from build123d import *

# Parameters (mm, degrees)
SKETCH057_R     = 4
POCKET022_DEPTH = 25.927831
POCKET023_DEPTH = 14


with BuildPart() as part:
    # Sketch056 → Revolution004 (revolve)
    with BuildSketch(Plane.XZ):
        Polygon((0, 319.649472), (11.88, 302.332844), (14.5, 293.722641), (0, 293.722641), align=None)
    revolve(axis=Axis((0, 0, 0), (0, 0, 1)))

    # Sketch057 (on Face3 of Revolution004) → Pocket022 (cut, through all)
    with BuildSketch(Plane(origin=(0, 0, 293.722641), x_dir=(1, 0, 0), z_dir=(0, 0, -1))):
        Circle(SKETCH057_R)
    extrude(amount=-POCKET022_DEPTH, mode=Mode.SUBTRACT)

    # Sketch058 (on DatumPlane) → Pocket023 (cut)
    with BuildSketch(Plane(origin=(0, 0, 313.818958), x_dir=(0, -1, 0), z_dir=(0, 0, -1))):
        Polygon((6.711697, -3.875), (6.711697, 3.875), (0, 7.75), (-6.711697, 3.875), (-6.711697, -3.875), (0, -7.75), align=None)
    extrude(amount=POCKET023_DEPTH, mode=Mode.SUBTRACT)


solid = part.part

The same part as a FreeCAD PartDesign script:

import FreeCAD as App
import Part
import Sketcher
from FreeCAD import Vector
Q = App.Units.Quantity

doc = App.newDocument("Part")
body = doc.addObject("PartDesign::Body", "Body")

sketch1 = body.newObject("Sketcher::SketchObject", "Sketch")
sketch1.AttachmentSupport = (doc.getObject("XZ_Plane"), [""])
sketch1.MapMode = "FlatFace"
sketch1.addGeometry([
    Part.LineSegment(Vector(12, 302, 0), Vector(0, 320, 0)),
    Part.LineSegment(Vector(0, 320, 0), Vector(0, 294, 0)),
    Part.LineSegment(Vector(0, 294, 0), Vector(14, 294, 0)),
    Part.LineSegment(Vector(14, 294, 0), Vector(12, 302, 0)),
], False)
sketch1.addConstraint([
    Sketcher.Constraint("Coincident", 0, 2, 1, 1),
    Sketcher.Constraint("Coincident", 1, 2, 2, 1),
    Sketcher.Constraint("Coincident", 2, 2, 3, 1),
    Sketcher.Constraint("Coincident", 3, 2, 0, 1),
    Sketcher.Constraint("Vertical", 1),
    Sketcher.Constraint("Horizontal", 2),
    Sketcher.Constraint("PointOnObject", 0, 2, -2),
    Sketcher.Constraint("Distance", 0, Q("21 mm")),
    Sketcher.Constraint("Distance", 3, Q("9 mm")),
    Sketcher.Constraint("DistanceX", 2, 1, 2, 2, Q("14.5 mm")),
    Sketcher.Constraint("DistanceX", -1, 1, 3, 2, Q("11.88 mm")),
    Sketcher.Constraint("DistanceY", -1, 1, 0, 2, Q("319.649472 mm")),
])
revolution = body.newObject("PartDesign::Revolution", "Revolution")
revolution.Profile = sketch1
revolution.ReferenceAxis = (sketch1, ["V_Axis"])
revolution.Angle = 360

sketch2 = body.newObject("Sketcher::SketchObject", "Sketch001")
sketch2.AttachmentSupport = (doc.getObject("XY_Plane"), [""])
sketch2.MapMode = "FlatFace"
sketch2.AttachmentOffset = App.Placement(Vector(0, 0, 293.722641), App.Rotation())
sketch2.addGeometry(Part.Circle(Vector(0, 0, 0), Vector(0, 0, 1), 4), False)
sketch2.addConstraint([
    Sketcher.Constraint("Coincident", 0, 3, -1, 1),
    Sketcher.Constraint("Diameter", 0, Q("8 mm")),
])
pocket1 = body.newObject("PartDesign::Pocket", "Pocket")
pocket1.Profile = sketch2
pocket1.Type = "ThroughAll"
pocket1.Reversed = True

sketch3 = body.newObject("Sketcher::SketchObject", "Sketch002")
sketch3.AttachmentSupport = (doc.getObject("XY_Plane"), [""])
sketch3.MapMode = "FlatFace"
sketch3.AttachmentOffset = App.Placement(Vector(0, 0, 313.818958), App.Rotation())
sketch3.addGeometry([
    Part.LineSegment(Vector(4, -7, 0), Vector(-4, -7, 0)),
    Part.LineSegment(Vector(-4, -7, 0), Vector(-8, 0, 0)),
    Part.LineSegment(Vector(-8, 0, 0), Vector(-4, 7, 0)),
    Part.LineSegment(Vector(-4, 7, 0), Vector(4, 7, 0)),
    Part.LineSegment(Vector(4, 7, 0), Vector(8, 0, 0)),
    Part.LineSegment(Vector(8, 0, 0), Vector(4, -7, 0)),
], False)
sketch3.addConstraint([
    Sketcher.Constraint("Coincident", 0, 2, 1, 1),
    Sketcher.Constraint("Coincident", 1, 2, 2, 1),
    Sketcher.Constraint("Coincident", 2, 2, 3, 1),
    Sketcher.Constraint("Coincident", 3, 2, 4, 1),
    Sketcher.Constraint("Coincident", 4, 2, 5, 1),
    Sketcher.Constraint("Coincident", 5, 2, 0, 1),
    Sketcher.Constraint("Horizontal", 0),
    Sketcher.Constraint("Horizontal", 3),
    Sketcher.Constraint("Symmetric", 0, 2, 3, 2, -1, 1),
    Sketcher.Constraint("Symmetric", 1, 2, 4, 2, -1, 1),
    Sketcher.Constraint("PointOnObject", 1, 2, -1),
    Sketcher.Constraint("Parallel", 2, 5),
    Sketcher.Constraint("Vertical", 0, 2, 2, 2),
    Sketcher.Constraint("Angle", 1, Q("120 deg")),
    Sketcher.Constraint("DistanceX", 0, 2, 0, 1, Q("7.75 mm")),
    Sketcher.Constraint("DistanceX", 1, 2, 4, 2, Q("15.5 mm")),
])
pocket2 = body.newObject("PartDesign::Pocket", "Pocket001")
pocket2.Profile = sketch3
pocket2.Length = 14

doc.recompute()
